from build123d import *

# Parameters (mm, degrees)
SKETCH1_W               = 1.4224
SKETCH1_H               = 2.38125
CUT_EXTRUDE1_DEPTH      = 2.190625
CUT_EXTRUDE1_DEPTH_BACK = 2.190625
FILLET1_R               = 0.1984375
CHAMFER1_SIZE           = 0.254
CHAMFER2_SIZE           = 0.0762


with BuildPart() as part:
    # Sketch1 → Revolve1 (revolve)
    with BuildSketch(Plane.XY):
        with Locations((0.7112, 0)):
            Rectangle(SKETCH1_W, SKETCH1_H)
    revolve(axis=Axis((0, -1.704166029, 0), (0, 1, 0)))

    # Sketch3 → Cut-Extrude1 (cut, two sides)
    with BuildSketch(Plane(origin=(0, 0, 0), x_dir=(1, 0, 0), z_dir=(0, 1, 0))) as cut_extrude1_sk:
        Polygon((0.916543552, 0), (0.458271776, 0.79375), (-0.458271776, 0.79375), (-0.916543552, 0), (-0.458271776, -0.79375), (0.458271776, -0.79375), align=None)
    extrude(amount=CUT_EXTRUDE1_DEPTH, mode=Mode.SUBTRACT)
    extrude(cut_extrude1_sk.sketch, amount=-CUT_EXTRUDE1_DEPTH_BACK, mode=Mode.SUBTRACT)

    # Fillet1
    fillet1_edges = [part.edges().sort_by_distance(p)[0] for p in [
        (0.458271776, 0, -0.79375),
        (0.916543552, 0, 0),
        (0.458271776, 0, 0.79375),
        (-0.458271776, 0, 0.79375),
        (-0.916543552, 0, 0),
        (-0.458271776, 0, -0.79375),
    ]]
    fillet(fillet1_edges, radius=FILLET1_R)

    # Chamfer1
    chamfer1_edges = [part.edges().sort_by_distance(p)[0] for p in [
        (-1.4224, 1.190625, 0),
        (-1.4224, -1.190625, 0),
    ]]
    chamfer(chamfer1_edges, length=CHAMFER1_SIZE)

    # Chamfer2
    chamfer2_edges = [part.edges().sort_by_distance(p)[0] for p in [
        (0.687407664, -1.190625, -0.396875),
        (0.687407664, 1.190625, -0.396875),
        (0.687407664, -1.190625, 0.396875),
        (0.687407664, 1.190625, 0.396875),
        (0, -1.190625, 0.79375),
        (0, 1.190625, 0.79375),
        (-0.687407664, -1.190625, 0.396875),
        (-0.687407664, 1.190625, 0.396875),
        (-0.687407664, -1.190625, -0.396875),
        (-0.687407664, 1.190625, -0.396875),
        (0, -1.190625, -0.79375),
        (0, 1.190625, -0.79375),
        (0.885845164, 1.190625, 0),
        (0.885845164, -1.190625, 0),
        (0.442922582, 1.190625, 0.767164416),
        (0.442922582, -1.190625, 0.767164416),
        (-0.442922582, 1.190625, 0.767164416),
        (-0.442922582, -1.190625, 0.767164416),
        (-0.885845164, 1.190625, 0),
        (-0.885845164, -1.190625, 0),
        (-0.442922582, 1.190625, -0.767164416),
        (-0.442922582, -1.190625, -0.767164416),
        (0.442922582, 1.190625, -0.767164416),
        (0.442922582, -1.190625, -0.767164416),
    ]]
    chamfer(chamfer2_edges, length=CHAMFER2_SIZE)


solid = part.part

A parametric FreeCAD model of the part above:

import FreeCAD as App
import Part
import Sketcher
Q = App.Units.Quantity


def edges_at(feature, points):
    """Names of the edges that pass closest to the given points."""
    edges = feature.Shape.Edges
    near = lambda p: min(range(len(edges)), key=lambda i: edges[i].distToShape(Part.Vertex(*p))[0])
    return sorted({f"Edge{near(p) + 1}" for p in points})


def add_polygon(sketch, points):
    """Adds a closed chain of lines whose ends are joined by coincident constraints."""
    first, n = sketch.GeometryCount, len(points)
    for a, b in zip(points, points[1:] + points[:1]):
        sketch.addGeometry(Part.LineSegment(App.Vector(*a, 0), App.Vector(*b, 0)), False)
    for i in range(n):
        sketch.addConstraint(Sketcher.Constraint("Coincident", first + i, 2, first + (i + 1) % n, 1))

doc = App.newDocument("Part")
body = doc.addObject("PartDesign::Body", "Body")

# Sketch on XY plane
sketch1 = body.newObject("Sketcher::SketchObject", "Sketch")
sketch1.AttachmentSupport = (doc.getObject("XY_Plane"), [""])
sketch1.MapMode = "FlatFace"
add_polygon(sketch1, [(0, 1.2), (0, -1.2), (1.4, -1.2), (1.4, 1.2)])  # lines 0-3
sketch1.addConstraint([
    Sketcher.Constraint("Vertical", 0),
    Sketcher.Constraint("Horizontal", 1),
    Sketcher.Constraint("Vertical", 2),
    Sketcher.Constraint("Horizontal", 3),
    Sketcher.Constraint("Symmetric", 0, 2, 3, 2, -1, 1),
    Sketcher.Constraint("DistanceX", 1, 1, 1, 2, Q("0.056 in")),
    Sketcher.Constraint("DistanceY", 0, 2, 0, 1, Q("0.09375 in")),
])
revolution = body.newObject("PartDesign::Revolution", "Revolution")
revolution.Profile = sketch1
revolution.ReferenceAxis = (sketch1, ["V_Axis"])
revolution.Angle = 360

# Sketch on XZ plane
sketch2 = body.newObject("Sketcher::SketchObject", "Sketch001")
sketch2.AttachmentSupport = (doc.getObject("XZ_Plane"), [""])
sketch2.MapMode = "FlatFace"
add_polygon(sketch2, [(0.9, 0), (0.5, -0.8), (-0.5, -0.8), (-0.9, 0), (-0.5, 0.8), (0.5, 0.8)])  # lines 0-5
sketch2.addConstraint([
    Sketcher.Constraint("Horizontal", 1),
    Sketcher.Constraint("Horizontal", 4),
    Sketcher.Constraint("Symmetric", 0, 2, 3, 2, -1, 1),
    Sketcher.Constraint("Symmetric", 2, 2, 5, 2, -1, 1),
    Sketcher.Constraint("PointOnObject", 2, 2, -1),
    Sketcher.Constraint("Parallel", 2, 5),
    Sketcher.Constraint("Vertical", 1, 2, 3, 2),
    Sketcher.Constraint("Angle", 0, Q("-120 deg")),
    Sketcher.Constraint("DistanceY", 0, 2, -1, 1, Q("0.03125 in")),
    Sketcher.Constraint("DistanceX", 1, 2, 1, 1, Q("0.916544 mm")),
])
pocket1 = body.newObject("PartDesign::Pocket", "Pocket")
pocket1.Profile = sketch2
pocket1.Type = "ThroughAll"
pocket1.Midplane = True
doc.recompute()

fillet = body.newObject("PartDesign::Fillet", "Fillet")
fillet.Base = (pocket1, edges_at(pocket1, [
    (0.458, 0, -0.794),
    (0.917, 0, 0),
    (0.458, 0, 0.794),
    (-0.458, 0, 0.794),
    (-0.917, 0, 0),
    (-0.458, 0, -0.794),
]))
fillet.Radius = 0.198437
doc.recompute()

chamfer = body.newObject("PartDesign::Chamfer", "Chamfer")
chamfer.Base = (fillet, edges_at(fillet, [(-1.422, 1.191, 0), (-1.422, -1.191, 0)]))
chamfer.Size = Q("0.01 in")
doc.recompute()

chamfer2 = body.newObject("PartDesign::Chamfer", "Chamfer001")
chamfer2.Base = (chamfer, edges_at(chamfer, [
    (0.687, -1.191, -0.397),
    (0.687, 1.191, -0.397),
    (0.687, -1.191, 0.397),
    (0.687, 1.191, 0.397),
    (0, -1.191, 0.794),
    (0, 1.191, 0.794),
    (-0.687, -1.191, 0.397),
    (-0.687, 1.191, 0.397),
    (-0.687, -1.191, -0.397),
    (-0.687, 1.191, -0.397),
    (0, -1.191, -0.794),
    (0, 1.191, -0.794),
    (0.886, 1.191, 0),
    (0.886, -1.191, 0),
    (0.443, 1.191, 0.767),
    (0.443, -1.191, 0.767),
    (-0.443, 1.191, 0.767),
    (-0.443, -1.191, 0.767),
    (-0.886, 1.191, 0),
    (-0.886, -1.191, 0),
    (-0.443, 1.191, -0.767),
    (-0.443, -1.191, -0.767),
    (0.443, 1.191, -0.767),
    (0.443, -1.191, -0.767),
]))
chamfer2.Size = Q("0.003 in")

doc.recompute()
